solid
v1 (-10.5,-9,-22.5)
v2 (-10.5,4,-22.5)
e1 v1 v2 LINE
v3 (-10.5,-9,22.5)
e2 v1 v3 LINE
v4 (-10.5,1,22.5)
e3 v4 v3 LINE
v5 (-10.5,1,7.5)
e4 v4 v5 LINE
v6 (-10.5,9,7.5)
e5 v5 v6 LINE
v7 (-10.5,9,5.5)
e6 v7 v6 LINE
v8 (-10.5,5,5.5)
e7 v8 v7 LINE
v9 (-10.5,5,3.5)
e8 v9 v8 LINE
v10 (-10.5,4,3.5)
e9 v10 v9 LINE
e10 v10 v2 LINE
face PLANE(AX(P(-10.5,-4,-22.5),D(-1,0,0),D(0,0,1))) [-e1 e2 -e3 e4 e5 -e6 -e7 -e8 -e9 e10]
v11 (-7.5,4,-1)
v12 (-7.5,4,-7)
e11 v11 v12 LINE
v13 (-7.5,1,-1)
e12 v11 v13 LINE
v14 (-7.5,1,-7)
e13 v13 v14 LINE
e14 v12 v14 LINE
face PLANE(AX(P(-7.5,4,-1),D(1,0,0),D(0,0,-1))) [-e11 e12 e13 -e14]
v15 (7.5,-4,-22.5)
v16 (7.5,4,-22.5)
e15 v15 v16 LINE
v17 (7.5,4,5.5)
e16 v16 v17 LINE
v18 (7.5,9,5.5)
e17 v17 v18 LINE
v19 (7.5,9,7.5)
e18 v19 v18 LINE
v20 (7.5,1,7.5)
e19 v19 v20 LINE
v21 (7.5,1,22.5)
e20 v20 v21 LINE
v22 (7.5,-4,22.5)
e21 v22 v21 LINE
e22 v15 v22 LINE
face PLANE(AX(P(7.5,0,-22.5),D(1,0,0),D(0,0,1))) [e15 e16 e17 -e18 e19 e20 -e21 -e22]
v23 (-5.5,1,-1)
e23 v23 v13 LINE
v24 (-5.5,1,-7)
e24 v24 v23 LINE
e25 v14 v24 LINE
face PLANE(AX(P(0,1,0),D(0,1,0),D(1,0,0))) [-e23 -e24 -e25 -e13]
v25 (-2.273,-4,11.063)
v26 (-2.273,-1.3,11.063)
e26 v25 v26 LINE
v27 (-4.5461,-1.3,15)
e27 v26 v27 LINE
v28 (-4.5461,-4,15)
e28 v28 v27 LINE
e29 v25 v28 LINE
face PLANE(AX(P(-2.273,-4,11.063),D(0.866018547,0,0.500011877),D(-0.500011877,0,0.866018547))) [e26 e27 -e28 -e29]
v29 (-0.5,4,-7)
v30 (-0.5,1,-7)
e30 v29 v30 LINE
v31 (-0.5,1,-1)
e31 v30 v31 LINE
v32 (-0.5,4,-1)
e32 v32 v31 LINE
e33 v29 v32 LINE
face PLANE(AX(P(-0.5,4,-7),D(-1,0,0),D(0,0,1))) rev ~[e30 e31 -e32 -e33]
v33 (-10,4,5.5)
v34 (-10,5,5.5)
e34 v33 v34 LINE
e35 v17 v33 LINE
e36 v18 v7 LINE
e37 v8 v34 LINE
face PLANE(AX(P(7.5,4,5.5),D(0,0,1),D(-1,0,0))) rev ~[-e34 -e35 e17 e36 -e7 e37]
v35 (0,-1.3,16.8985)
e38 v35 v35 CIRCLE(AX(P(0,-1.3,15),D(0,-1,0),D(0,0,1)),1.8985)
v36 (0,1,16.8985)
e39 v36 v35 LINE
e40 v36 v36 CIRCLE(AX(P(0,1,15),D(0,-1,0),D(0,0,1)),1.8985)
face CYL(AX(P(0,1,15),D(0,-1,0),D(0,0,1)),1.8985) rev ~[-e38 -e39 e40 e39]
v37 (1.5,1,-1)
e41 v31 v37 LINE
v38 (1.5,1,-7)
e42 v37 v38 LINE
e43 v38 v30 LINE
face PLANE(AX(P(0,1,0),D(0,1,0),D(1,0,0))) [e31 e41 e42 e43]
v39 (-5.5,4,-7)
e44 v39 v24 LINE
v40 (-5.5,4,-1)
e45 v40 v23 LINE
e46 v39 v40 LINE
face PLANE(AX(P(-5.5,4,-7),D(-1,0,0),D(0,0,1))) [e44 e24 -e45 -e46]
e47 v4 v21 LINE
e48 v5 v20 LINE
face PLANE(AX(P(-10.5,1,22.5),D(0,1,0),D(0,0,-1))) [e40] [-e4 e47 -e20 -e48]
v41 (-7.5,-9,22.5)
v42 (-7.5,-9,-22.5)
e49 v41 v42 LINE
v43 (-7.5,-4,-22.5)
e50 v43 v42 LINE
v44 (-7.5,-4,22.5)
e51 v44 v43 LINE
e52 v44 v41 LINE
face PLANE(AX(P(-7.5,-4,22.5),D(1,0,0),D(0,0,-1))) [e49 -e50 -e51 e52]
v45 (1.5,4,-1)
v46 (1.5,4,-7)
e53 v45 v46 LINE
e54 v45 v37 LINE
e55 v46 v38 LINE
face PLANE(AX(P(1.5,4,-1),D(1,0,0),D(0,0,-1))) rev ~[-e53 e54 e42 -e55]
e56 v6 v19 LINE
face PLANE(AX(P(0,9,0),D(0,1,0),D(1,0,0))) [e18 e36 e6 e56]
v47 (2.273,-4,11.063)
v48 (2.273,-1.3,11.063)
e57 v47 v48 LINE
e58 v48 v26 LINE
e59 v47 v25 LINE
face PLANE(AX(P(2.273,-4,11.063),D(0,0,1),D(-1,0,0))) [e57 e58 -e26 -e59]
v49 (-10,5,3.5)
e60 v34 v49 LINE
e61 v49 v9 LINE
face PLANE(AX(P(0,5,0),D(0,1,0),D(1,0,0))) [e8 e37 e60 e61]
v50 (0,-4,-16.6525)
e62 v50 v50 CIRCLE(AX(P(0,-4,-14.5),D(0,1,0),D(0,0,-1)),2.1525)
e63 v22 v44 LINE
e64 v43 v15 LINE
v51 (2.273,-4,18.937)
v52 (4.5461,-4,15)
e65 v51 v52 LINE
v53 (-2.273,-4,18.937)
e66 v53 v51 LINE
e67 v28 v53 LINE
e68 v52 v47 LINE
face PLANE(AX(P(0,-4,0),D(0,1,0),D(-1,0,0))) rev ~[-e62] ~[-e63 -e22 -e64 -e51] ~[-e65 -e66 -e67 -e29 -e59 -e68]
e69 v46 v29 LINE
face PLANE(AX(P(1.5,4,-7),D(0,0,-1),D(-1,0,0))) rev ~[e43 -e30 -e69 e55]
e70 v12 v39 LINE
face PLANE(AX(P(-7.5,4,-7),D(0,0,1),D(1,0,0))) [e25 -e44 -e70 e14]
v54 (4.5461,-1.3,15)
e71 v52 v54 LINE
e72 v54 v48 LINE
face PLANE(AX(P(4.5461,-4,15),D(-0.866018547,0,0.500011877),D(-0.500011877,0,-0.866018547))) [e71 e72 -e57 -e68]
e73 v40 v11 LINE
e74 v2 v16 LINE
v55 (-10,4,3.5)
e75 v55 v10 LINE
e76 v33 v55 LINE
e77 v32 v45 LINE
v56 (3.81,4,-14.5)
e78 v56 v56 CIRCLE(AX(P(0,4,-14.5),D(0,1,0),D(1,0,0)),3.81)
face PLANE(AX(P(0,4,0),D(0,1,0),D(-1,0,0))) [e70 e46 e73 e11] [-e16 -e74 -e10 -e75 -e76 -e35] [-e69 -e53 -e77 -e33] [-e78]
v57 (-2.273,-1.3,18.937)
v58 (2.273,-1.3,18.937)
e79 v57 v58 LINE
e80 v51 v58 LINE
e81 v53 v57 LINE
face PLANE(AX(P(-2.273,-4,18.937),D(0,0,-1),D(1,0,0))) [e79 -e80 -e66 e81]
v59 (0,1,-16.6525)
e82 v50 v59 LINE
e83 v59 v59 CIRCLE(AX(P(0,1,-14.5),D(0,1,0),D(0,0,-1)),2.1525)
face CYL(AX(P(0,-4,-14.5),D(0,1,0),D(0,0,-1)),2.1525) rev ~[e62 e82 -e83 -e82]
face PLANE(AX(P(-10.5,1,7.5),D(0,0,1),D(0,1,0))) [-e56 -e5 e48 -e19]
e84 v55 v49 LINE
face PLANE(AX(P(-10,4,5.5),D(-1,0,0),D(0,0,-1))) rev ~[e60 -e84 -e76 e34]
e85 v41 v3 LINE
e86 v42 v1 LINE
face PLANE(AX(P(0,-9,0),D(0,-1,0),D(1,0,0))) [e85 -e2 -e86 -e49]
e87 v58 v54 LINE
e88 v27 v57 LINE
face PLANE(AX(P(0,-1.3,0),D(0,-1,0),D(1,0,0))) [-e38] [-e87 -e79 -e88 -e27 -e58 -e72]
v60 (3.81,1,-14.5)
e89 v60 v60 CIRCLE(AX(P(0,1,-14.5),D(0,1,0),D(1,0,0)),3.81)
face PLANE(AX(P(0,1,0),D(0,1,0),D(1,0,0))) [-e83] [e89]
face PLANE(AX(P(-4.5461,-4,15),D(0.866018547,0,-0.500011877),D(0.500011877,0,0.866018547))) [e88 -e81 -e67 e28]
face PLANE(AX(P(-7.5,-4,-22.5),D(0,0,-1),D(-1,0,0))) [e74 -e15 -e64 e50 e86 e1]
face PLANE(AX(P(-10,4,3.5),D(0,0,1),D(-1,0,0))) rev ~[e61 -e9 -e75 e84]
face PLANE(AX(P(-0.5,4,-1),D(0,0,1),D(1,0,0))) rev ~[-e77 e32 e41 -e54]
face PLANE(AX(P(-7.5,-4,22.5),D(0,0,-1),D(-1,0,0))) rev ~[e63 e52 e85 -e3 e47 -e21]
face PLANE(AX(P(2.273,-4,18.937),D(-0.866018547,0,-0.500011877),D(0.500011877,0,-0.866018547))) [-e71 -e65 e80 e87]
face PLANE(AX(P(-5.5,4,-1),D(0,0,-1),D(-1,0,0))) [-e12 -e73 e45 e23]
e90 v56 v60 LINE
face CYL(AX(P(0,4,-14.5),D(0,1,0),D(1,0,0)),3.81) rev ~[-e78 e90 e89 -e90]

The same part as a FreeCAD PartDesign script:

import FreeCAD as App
import Part
import Sketcher
Q = App.Units.Quantity


def add_polygon(sketch, points):
    """Adds a closed chain of lines whose ends are joined by coincident constraints."""
    first, n = sketch.GeometryCount, len(points)
    for a, b in zip(points, points[1:] + points[:1]):
        sketch.addGeometry(Part.LineSegment(App.Vector(*a, 0), App.Vector(*b, 0)), False)
    for i in range(n):
        sketch.addConstraint(Sketcher.Constraint("Coincident", first + i, 2, first + (i + 1) % n, 1))

doc = App.newDocument("Part")
body = doc.addObject("PartDesign::Body", "Body")

sketch1 = body.newObject("Sketcher::SketchObject", "Sketch")
sketch1.AttachmentSupport = (doc.getObject("XZ_Plane"), [""])
sketch1.MapMode = "FlatFace"
add_polygon(sketch1, [(-10, 22), (8, 22), (8, -22), (-10, -22)])
sketch1.addConstraint(Sketcher.Constraint("Horizontal", 0))
sketch1.addConstraint(Sketcher.Constraint("Vertical", 1))
sketch1.addConstraint(Sketcher.Constraint("Horizontal", 2))
sketch1.addConstraint(Sketcher.Constraint("Vertical", 3))
sketch1.addConstraint(Sketcher.Constraint("DistanceX", 0, 1, 0, 2, 18.0))
sketch1.addConstraint(Sketcher.Constraint("DistanceY", 1, 2, 1, 1, 45.0))
sketch1.addConstraint(Sketcher.Constraint("DistanceX", -1, 1, 0, 2, 7.5))
sketch1.addConstraint(Sketcher.Constraint("DistanceY", -1, 1, 0, 2, 22.5))
pad1 = body.newObject("PartDesign::Pad", "Pad")
pad1.Profile = sketch1
pad1.Length = 8
pad1.Midplane = True

sketch2 = body.newObject("Sketcher::SketchObject", "Sketch001")
sketch2.AttachmentSupport = (doc.getObject("XZ_Plane"), [""])
sketch2.MapMode = "FlatFace"
sketch2.AttachmentOffset = App.Placement(App.Vector(0, 0, -4), App.Rotation())
add_polygon(sketch2, [(-10.5, 5.5), (-10.5, 7.5), (7.5, 7.5), (7.5, 5.5)])
sketch2.addConstraint(Sketcher.Constraint("Vertical", 0))
sketch2.addConstraint(Sketcher.Constraint("Horizontal", 1))
sketch2.addConstraint(Sketcher.Constraint("Vertical", 2))
sketch2.addConstraint(Sketcher.Constraint("Horizontal", 3))
sketch2.addConstraint(Sketcher.Constraint("DistanceY", 0, 1, 0, 2, 2.0))
sketch2.addConstraint(Sketcher.Constraint("DistanceX", 1, 1, 1, 2, 18.0))
sketch2.addConstraint(Sketcher.Constraint("DistanceX", 0, 2, -1, 1, 10.5))
sketch2.addConstraint(Sketcher.Constraint("DistanceY", -1, 1, 0, 2, 7.5))
pad2 = body.newObject("PartDesign::Pad", "Pad001")
pad2.Profile = sketch2
pad2.Length = 5
pad2.Reversed = True

sketch3 = body.newObject("Sketcher::SketchObject", "Sketch002")
sketch3.AttachmentSupport = (doc.getObject("XZ_Plane"), [""])
sketch3.MapMode = "FlatFace"
sketch3.AttachmentOffset = App.Placement(App.Vector(0, 0, -4), App.Rotation())
add_polygon(sketch3, [(-5.5, -7), (-7.5, -7), (-7.5, -1), (-5.5, -1)])
add_polygon(sketch3, [(1.5, -1), (1.5, -7), (-0.5, -7), (-0.5, -1)])
sketch3.addConstraint(Sketcher.Constraint("Horizontal", 0))
sketch3.addConstraint(Sketcher.Constraint("Vertical", 1))
sketch3.addConstraint(Sketcher.Constraint("Horizontal", 2))
sketch3.addConstraint(Sketcher.Constraint("Vertical", 3))
sketch3.addConstraint(Sketcher.Constraint("Vertical", 4))
sketch3.addConstraint(Sketcher.Constraint("Horizontal", 5))
sketch3.addConstraint(Sketcher.Constraint("Vertical", 6))
sketch3.addConstraint(Sketcher.Constraint("Horizontal", 7))
sketch3.addConstraint(Sketcher.Constraint("Horizontal", 3, 2, 4, 2))
sketch3.addConstraint(Sketcher.Constraint("Horizontal", 2, 2, 6, 2))
sketch3.addConstraint(Sketcher.Constraint("Equal", 2, 5))
sketch3.addConstraint(Sketcher.Constraint("DistanceX", 0, 2, 0, 1, 2.0))
sketch3.addConstraint(Sketcher.Constraint("DistanceY", 1, 1, 1, 2, 6.0))
sketch3.addConstraint(Sketcher.Constraint("DistanceY", 0, 2, -1, 1, 7.0))
sketch3.addConstraint(Sketcher.Constraint("DistanceX", 3, 2, 4, 2, 7.0))
sketch3.addConstraint(Sketcher.Constraint("DistanceX", 0, 2, -1, 1, 7.5))
pocket1 = body.newObject("PartDesign::Pocket", "Pocket")
pocket1.Profile = sketch3
pocket1.Length = 3
pocket1.Reversed = True

sketch4 = body.newObject("Sketcher::SketchObject", "Sketch003")
sketch4.AttachmentSupport = (doc.getObject("YZ_Plane"), [""])
sketch4.MapMode = "FlatFace"
sketch4.AttachmentOffset = App.Placement(App.Vector(0, 0, -10.5), App.Rotation())
add_polygon(sketch4, [(4, 22.5), (4, 7.5), (1, 7.5), (1, 22.5)])
sketch4.addConstraint(Sketcher.Constraint("Vertical", 0))
sketch4.addConstraint(Sketcher.Constraint("Horizontal", 1))
sketch4.addConstraint(Sketcher.Constraint("Vertical", 2))
sketch4.addConstraint(Sketcher.Constraint("Horizontal", 3))
sketch4.addConstraint(Sketcher.Constraint("DistanceX", 1, 2, 1, 1, 3.0))
sketch4.addConstraint(Sketcher.Constraint("DistanceY", 0, 2, 0, 1, 15.0))
sketch4.addConstraint(Sketcher.Constraint("DistanceX", -1, 1, 0, 2, 4.0))
sketch4.addConstraint(Sketcher.Constraint("DistanceY", -1, 1, 0, 2, 7.5))
pocket2 = body.newObject("PartDesign::Pocket", "Pocket001")
pocket2.Profile = sketch4
pocket2.Type = "ThroughAll"
pocket2.Reversed = True

sketch5 = body.newObject("Sketcher::SketchObject", "Sketch004")
sketch5.AttachmentSupport = (doc.getObject("XZ_Plane"), [""])
sketch5.MapMode = "FlatFace"
sketch5.AttachmentOffset = App.Placement(App.Vector(0, 0, -4), App.Rotation())
add_polygon(sketch5, [(-10.5, 3.5), (-10.5, 5.5), (-10, 5.5), (-10, 3.5)])
sketch5.addConstraint(Sketcher.Constraint("Vertical", 0))
sketch5.addConstraint(Sketcher.Constraint("Horizontal", 1))
sketch5.addConstraint(Sketcher.Constraint("Vertical", 2))
sketch5.addConstraint(Sketcher.Constraint("Horizontal", 3))
sketch5.addConstraint(Sketcher.Constraint("DistanceY", 0, 1, 0, 2, 2.0))
sketch5.addConstraint(Sketcher.Constraint("DistanceX", 1, 1, 1, 2, 0.5))
sketch5.addConstraint(Sketcher.Constraint("DistanceX", 1, 2, -1, 1, 10.0))
sketch5.addConstraint(Sketcher.Constraint("DistanceY", -1, 1, 0, 2, 5.5))
pad3 = body.newObject("PartDesign::Pad", "Pad002")
pad3.Profile = sketch5
pad3.Length = 1
pad3.Reversed = True

sketch6 = body.newObject("Sketcher::SketchObject", "Sketch005")
sketch6.AttachmentSupport = (doc.getObject("XZ_Plane"), [""])
sketch6.MapMode = "FlatFace"
sketch6.AttachmentOffset = App.Placement(App.Vector(0, 0, -1), App.Rotation())
sketch6.addGeometry(Part.Circle(App.Vector(0, 15, 0), App.Vector(0, 0, 1), 1.9), False)
sketch6.addConstraint(Sketcher.Constraint("PointOnObject", 0, 3, -2))
sketch6.addConstraint(Sketcher.Constraint("Diameter", 0, 3.797))
sketch6.addConstraint(Sketcher.Constraint("DistanceY", -1, 1, 0, 3, 15.0))
doc.recompute()
hole = body.newObject("PartDesign::Hole", "Hole")
hole.Profile = sketch6
hole.ThreadType = "None"
hole.Diameter = 3.797
hole.DepthType = "ThroughAll"
hole.Reversed = True

sketch7 = body.newObject("Sketcher::SketchObject", "Sketch006")
sketch7.AttachmentSupport = (doc.getObject("XZ_Plane"), [""])
sketch7.MapMode = "FlatFace"
sketch7.AttachmentOffset = App.Placement(App.Vector(0, 0, 4), App.Rotation())
add_polygon(sketch7, [(-4.5, 15), (-2.3, 11.1), (2.3, 11.1), (4.5, 15), (2.3, 18.9), (-2.3, 18.9)])
sketch7.addGeometry(Part.Circle(App.Vector(0, 15, 0), App.Vector(0, 0, 1), 1.9), False)
sketch7.addConstraint(Sketcher.Constraint("Horizontal", 1))
sketch7.addConstraint(Sketcher.Constraint("Horizontal", 4))
sketch7.addConstraint(Sketcher.Constraint("Symmetric", 2, 2, 5, 2, -2))
sketch7.addConstraint(Sketcher.Constraint("PointOnObject", 6, 3, -2))
sketch7.addConstraint(Sketcher.Constraint("Parallel", 0, 3))
sketch7.addConstraint(Sketcher.Constraint("Parallel", 2, 5))
sketch7.addConstraint(Sketcher.Constraint("Horizontal", 6, 3, 2, 2))
sketch7.addConstraint(Sketcher.Constraint("Vertical", 1, 2, 3, 2))
sketch7.addConstraint(Sketcher.Constraint("Vertical", 0, 2, 4, 2))
sketch7.addConstraint(Sketcher.Constraint("Angle", 0, Q("-59.9992 deg")))
sketch7.addConstraint(Sketcher.Constraint("Diameter", 6, 3.797))
sketch7.addConstraint(Sketcher.Constraint("DistanceY", -1, 1, 6, 3, 15.0))
sketch7.addConstraint(Sketcher.Constraint("DistanceY", 1, 2, 3, 2, 7.874))
sketch7.addConstraint(Sketcher.Constraint("DistanceX", 1, 1, 1, 2, 4.546))
pocket3 = body.newObject("PartDesign::Pocket", "Pocket002")
pocket3.Profile = sketch7
pocket3.Length = 2.7

sketch8 = body.newObject("Sketcher::SketchObject", "Sketch007")
sketch8.AttachmentSupport = (doc.getObject("XZ_Plane"), [""])
sketch8.MapMode = "FlatFace"
sketch8.AttachmentOffset = App.Placement(App.Vector(0, 0, -4), App.Rotation())
sketch8.addGeometry(Part.Circle(App.Vector(0, -14.5, 0), App.Vector(0, 0, 1), 3.8), False)
sketch8.addConstraint(Sketcher.Constraint("PointOnObject", 0, 3, -2))
sketch8.addConstraint(Sketcher.Constraint("Diameter", 0, 7.62))
sketch8.addConstraint(Sketcher.Constraint("DistanceY", 0, 3, -1, 1, 14.5))
pocket4 = body.newObject("PartDesign::Pocket", "Pocket003")
pocket4.Profile = sketch8
pocket4.Length = 3
pocket4.Reversed = True

sketch9 = body.newObject("Sketcher::SketchObject", "Sketch008")
sketch9.AttachmentSupport = (doc.getObject("XZ_Plane"), [""])
sketch9.MapMode = "FlatFace"
sketch9.AttachmentOffset = App.Placement(App.Vector(0, 0, 4), App.Rotation())
sketch9.addGeometry(Part.Circle(App.Vector(0, -14.5, 0), App.Vector(0, 0, 1), 2.2), False)
sketch9.addConstraint(Sketcher.Constraint("PointOnObject", 0, 3, -2))
sketch9.addConstraint(Sketcher.Constraint("Diameter", 0, 4.305))
sketch9.addConstraint(Sketcher.Constraint("DistanceY", 0, 3, -1, 1, 14.5))
doc.recompute()
hole2 = body.newObject("PartDesign::Hole", "Hole001")
hole2.Profile = sketch9
hole2.ThreadType = "None"
hole2.Diameter = 4.305
hole2.DepthType = "ThroughAll"

sketch10 = body.newObject("Sketcher::SketchObject", "Sketch009")
sketch10.AttachmentSupport = (doc.getObject("XZ_Plane"), [""])
sketch10.MapMode = "FlatFace"
sketch10.AttachmentOffset = App.Placement(App.Vector(0, 0, 4), App.Rotation())
add_polygon(sketch10, [(-7.5, -22.5), (-7.5, 22.5), (-10.5, 22.5), (-10.5, -22.5)])
sketch10.addConstraint(Sketcher.Constraint("Vertical", 0))
sketch10.addConstraint(Sketcher.Constraint("Horizontal", 1))
sketch10.addConstraint(Sketcher.Constraint("Vertical", 2))
sketch10.addConstraint(Sketcher.Constraint("Horizontal", 3))
sketch10.addConstraint(Sketcher.Constraint("DistanceX", 1, 2, 1, 1, 3.0))
sketch10.addConstraint(Sketcher.Constraint("DistanceY", 0, 1, 0, 2, 45.0))
sketch10.addConstraint(Sketcher.Constraint("DistanceX", 0, 2, -1, 1, 7.5))
sketch10.addConstraint(Sketcher.Constraint("DistanceY", -1, 1, 0, 2, 22.5))
pad4 = body.newObject("PartDesign::Pad", "Pad003")
pad4.Profile = sketch10
pad4.Length = 5

doc.recompute()
